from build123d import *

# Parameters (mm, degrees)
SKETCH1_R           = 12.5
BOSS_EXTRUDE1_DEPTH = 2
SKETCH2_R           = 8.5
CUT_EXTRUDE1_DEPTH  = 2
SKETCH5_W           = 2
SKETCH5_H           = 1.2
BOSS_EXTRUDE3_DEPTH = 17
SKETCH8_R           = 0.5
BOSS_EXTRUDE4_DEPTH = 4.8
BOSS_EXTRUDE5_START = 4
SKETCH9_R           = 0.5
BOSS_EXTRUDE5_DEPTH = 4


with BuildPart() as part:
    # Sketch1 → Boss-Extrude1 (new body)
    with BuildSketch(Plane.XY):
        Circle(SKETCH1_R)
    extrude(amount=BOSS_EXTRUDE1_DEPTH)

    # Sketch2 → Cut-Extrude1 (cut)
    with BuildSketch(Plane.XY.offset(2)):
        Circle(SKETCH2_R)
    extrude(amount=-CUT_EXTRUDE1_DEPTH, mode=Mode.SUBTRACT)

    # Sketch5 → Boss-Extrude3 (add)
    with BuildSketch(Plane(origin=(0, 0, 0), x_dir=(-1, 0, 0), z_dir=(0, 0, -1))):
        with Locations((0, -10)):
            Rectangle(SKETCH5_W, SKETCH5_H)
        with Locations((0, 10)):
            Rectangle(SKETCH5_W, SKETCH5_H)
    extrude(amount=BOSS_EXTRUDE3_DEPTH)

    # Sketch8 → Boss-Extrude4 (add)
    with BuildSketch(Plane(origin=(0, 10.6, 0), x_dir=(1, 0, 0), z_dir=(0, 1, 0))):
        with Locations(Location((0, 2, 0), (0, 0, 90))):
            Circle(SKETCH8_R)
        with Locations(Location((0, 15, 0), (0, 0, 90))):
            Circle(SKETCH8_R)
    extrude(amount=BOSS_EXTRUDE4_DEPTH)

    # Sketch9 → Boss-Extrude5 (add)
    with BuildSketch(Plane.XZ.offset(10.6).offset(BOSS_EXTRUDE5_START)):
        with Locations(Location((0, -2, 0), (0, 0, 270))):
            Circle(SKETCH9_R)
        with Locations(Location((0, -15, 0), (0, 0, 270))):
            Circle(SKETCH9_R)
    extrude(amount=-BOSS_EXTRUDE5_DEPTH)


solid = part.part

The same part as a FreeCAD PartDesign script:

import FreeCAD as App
import Part
import Sketcher


def add_polygon(sketch, points):
    """Adds a closed chain of lines whose ends are joined by coincident constraints."""
    first, n = sketch.GeometryCount, len(points)
    for a, b in zip(points, points[1:] + points[:1]):
        sketch.addGeometry(Part.LineSegment(App.Vector(*a, 0), App.Vector(*b, 0)), False)
    for i in range(n):
        sketch.addConstraint(Sketcher.Constraint("Coincident", first + i, 2, first + (i + 1) % n, 1))

doc = App.newDocument("Part")
body = doc.addObject("PartDesign::Body", "Body")

sketch1 = body.newObject("Sketcher::SketchObject", "Sketch")
sketch1.AttachmentSupport = (doc.getObject("XY_Plane"), [""])
sketch1.MapMode = "FlatFace"
sketch1.addGeometry(Part.Circle(App.Vector(0, 0, 0), App.Vector(0, 0, 1), 12), False)
sketch1.addConstraint([
    Sketcher.Constraint("Coincident", 0, 3, -1, 1),
    Sketcher.Constraint("Diameter", 0, 25.0),
])
pad1 = body.newObject("PartDesign::Pad", "Pad")
pad1.Profile = sketch1
pad1.Length = 2

sketch2 = body.newObject("Sketcher::SketchObject", "Sketch001")
sketch2.AttachmentSupport = (doc.getObject("XY_Plane"), [""])
sketch2.MapMode = "FlatFace"
sketch2.AttachmentOffset = App.Placement(App.Vector(0, 0, 2), App.Rotation())
sketch2.addGeometry(Part.Circle(App.Vector(0, 0, 0), App.Vector(0, 0, 1), 8), False)
sketch2.addConstraint([
    Sketcher.Constraint("Coincident", 0, 3, -1, 1),
    Sketcher.Constraint("Diameter", 0, 17.0),
])
pocket1 = body.newObject("PartDesign::Pocket", "Pocket")
pocket1.Profile = sketch2
pocket1.Length = 2

sketch3 = body.newObject("Sketcher::SketchObject", "Sketch002")
sketch3.AttachmentSupport = (doc.getObject("XY_Plane"), [""])
sketch3.MapMode = "FlatFace"
add_polygon(sketch3, [(1, -9.4), (1, -10.6), (-1, -10.6), (-1, -9.4)])
add_polygon(sketch3, [(1, 10.6), (1, 9.4), (-1, 9.4), (-1, 10.6)])
sketch3.addConstraint([
    Sketcher.Constraint("Vertical", 0),
    Sketcher.Constraint("Horizontal", 1),
    Sketcher.Constraint("Vertical", 2),
    Sketcher.Constraint("Horizontal", 3),
    Sketcher.Constraint("Vertical", 4),
    Sketcher.Constraint("Horizontal", 5),
    Sketcher.Constraint("Vertical", 6),
    Sketcher.Constraint("Horizontal", 7),
    Sketcher.Constraint("Symmetric", 2, 2, 4, 2, -1, 1),
    Sketcher.Constraint("Symmetric", 0, 2, 6, 2, -1, 1),
    Sketcher.Constraint("Vertical", 3, 2, 4, 2),
    Sketcher.Constraint("DistanceX", 1, 2, 1, 1, 2.0),
    Sketcher.Constraint("DistanceY", 0, 2, 0, 1, 1.2),
    Sketcher.Constraint("DistanceY", 0, 2, 4, 2, 20.0),
])
pad2 = body.newObject("PartDesign::Pad", "Pad001")
pad2.Profile = sketch3
pad2.Length = 17
pad2.Reversed = True

sketch4 = body.newObject("Sketcher::SketchObject", "Sketch003")
sketch4.AttachmentSupport = (doc.getObject("XZ_Plane"), [""])
sketch4.MapMode = "FlatFace"
sketch4.AttachmentOffset = App.Placement(App.Vector(0, 0, -10.6), App.Rotation())
sketch4.addGeometry([
    Part.Circle(App.Vector(0, -2, 0), App.Vector(0, 0, 1), 0.5),
    Part.Circle(App.Vector(0, -15, 0), App.Vector(0, 0, 1), 0.5),
], False)
sketch4.addConstraint([
    Sketcher.Constraint("Equal", 0, 1),
    Sketcher.Constraint("PointOnObject", 0, 3, -2),
    Sketcher.Constraint("PointOnObject", 1, 3, -2),
    Sketcher.Constraint("Diameter", 0, 1.0),
    Sketcher.Constraint("DistanceY", 0, 3, -1, 1, 2.0),
    Sketcher.Constraint("DistanceY", 1, 3, -1, 1, 15.0),
])
pad3 = body.newObject("PartDesign::Pad", "Pad002")
pad3.Profile = sketch4
pad3.Length = 4.8
pad3.Reversed = True

sketch5 = body.newObject("Sketcher::SketchObject", "Sketch004")
sketch5.AttachmentSupport = (doc.getObject("XZ_Plane"), [""])
sketch5.MapMode = "FlatFace"
sketch5.AttachmentOffset = App.Placement(App.Vector(0, 0, 14.6), App.Rotation())
sketch5.addGeometry([
    Part.Circle(App.Vector(0, -2, 0), App.Vector(0, 0, 1), 0.5),
    Part.Circle(App.Vector(0, -15, 0), App.Vector(0, 0, 1), 0.5),
], False)
sketch5.addConstraint([
    Sketcher.Constraint("Equal", 0, 1),
    Sketcher.Constraint("PointOnObject", 0, 3, -2),
    Sketcher.Constraint("PointOnObject", 1, 3, -2),
    Sketcher.Constraint("Diameter", 0, 1.0),
    Sketcher.Constraint("DistanceY", 0, 3, -1, 1, 2.0),
    Sketcher.Constraint("DistanceY", 1, 3, -1, 1, 15.0),
])
pad4 = body.newObject("PartDesign::Pad", "Pad003")
pad4.Profile = sketch5
pad4.Length = 4
pad4.Reversed = True

doc.recompute()
